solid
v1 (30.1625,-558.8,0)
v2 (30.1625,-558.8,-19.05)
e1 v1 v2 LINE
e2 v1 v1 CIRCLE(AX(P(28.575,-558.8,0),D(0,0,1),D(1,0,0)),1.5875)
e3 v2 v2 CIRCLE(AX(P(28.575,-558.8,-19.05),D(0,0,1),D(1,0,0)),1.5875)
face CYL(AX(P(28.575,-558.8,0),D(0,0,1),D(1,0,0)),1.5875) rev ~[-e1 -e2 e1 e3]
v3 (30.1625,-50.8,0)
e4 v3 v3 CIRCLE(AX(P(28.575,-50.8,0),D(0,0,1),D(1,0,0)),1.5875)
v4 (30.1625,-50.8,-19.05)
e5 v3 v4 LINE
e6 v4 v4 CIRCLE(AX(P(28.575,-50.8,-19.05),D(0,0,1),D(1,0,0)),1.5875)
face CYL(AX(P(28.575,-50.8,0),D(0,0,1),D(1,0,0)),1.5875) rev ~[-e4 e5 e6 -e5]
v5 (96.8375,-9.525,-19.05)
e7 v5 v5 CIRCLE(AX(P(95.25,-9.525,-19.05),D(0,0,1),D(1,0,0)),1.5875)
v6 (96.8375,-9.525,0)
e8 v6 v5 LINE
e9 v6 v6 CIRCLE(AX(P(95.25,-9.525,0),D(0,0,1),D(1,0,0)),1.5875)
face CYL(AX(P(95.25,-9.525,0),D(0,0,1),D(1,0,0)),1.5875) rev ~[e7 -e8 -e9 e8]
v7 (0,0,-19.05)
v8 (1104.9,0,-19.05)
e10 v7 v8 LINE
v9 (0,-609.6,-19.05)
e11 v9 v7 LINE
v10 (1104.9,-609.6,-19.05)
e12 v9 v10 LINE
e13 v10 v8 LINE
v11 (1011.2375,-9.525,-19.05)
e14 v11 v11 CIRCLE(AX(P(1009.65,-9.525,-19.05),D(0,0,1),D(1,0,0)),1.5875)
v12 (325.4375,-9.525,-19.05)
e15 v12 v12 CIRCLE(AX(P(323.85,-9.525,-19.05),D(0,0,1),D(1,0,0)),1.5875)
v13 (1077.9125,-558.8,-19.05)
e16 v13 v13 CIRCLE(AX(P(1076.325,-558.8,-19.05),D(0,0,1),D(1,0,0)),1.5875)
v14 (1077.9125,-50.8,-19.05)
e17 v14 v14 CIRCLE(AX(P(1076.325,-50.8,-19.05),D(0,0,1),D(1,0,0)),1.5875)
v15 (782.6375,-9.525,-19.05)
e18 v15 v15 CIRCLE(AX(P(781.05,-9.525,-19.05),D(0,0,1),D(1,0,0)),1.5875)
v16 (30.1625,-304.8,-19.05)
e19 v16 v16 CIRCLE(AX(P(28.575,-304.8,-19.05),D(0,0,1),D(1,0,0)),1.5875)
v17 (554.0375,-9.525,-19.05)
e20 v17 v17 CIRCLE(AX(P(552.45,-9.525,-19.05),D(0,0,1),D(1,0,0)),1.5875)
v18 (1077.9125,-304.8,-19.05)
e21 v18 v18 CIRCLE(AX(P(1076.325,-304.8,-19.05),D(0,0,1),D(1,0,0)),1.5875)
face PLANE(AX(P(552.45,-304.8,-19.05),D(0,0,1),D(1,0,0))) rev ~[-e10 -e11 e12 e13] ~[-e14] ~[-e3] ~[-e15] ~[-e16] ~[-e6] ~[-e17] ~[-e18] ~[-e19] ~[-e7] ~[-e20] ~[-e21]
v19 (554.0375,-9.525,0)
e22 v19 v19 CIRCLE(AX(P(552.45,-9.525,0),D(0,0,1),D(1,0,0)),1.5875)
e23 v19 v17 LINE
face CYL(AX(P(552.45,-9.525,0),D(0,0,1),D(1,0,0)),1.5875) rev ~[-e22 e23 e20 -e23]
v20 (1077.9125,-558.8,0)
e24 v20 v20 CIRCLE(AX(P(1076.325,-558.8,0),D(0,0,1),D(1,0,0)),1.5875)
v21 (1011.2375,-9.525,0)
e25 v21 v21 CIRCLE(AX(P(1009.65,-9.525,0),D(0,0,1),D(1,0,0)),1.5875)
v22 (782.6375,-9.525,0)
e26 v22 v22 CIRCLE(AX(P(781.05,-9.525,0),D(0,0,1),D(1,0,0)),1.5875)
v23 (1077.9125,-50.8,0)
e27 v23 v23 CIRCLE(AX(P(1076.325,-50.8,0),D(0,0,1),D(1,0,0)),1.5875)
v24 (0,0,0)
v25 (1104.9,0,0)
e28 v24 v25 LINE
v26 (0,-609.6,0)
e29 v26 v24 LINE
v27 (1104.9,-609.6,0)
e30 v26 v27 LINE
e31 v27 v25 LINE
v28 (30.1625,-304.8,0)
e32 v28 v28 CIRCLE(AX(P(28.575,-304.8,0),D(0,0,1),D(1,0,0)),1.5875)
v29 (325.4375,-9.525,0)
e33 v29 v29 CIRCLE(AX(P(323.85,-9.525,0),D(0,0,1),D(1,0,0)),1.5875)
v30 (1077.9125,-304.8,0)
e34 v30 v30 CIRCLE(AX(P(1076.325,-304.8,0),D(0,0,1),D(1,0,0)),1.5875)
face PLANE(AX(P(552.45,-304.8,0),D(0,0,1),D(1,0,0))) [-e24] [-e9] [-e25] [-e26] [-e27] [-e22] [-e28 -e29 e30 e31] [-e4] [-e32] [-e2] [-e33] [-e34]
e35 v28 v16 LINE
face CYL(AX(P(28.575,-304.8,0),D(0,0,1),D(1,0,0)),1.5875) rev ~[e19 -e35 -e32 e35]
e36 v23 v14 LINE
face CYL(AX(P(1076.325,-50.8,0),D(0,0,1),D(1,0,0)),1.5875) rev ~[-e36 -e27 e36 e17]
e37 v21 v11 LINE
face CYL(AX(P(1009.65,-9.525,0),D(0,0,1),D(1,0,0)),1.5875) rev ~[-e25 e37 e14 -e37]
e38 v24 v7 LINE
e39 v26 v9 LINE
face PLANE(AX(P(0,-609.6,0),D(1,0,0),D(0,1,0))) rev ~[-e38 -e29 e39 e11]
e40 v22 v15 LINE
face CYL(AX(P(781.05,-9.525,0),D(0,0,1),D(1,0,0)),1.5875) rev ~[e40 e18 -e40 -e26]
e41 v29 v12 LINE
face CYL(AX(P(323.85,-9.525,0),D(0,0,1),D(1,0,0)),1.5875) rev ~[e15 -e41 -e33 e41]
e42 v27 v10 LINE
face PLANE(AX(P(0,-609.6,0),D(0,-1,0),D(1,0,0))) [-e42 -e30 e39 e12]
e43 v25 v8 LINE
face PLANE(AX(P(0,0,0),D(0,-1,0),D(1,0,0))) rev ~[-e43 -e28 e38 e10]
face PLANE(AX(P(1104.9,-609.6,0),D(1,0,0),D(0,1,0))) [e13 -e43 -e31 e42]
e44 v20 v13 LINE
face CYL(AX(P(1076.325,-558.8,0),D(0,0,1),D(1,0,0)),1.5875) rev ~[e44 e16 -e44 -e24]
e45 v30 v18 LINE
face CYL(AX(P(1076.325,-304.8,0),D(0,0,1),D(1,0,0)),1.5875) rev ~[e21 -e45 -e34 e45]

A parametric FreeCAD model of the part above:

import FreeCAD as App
import Part
import Sketcher

V = App.Vector
Q = App.Units.Quantity


def add_polygon(sketch, points):
    """Adds a closed chain of lines whose ends are joined by coincident constraints."""
    first, n = sketch.GeometryCount, len(points)
    for a, b in zip(points, points[1:] + points[:1]):
        sketch.addGeometry(Part.LineSegment(App.Vector(*a, 0), App.Vector(*b, 0)), False)
    for i in range(n):
        sketch.addConstraint(Sketcher.Constraint("Coincident", first + i, 2, first + (i + 1) % n, 1))

doc = App.newDocument("Part")
body = doc.addObject("PartDesign::Body", "Body")

sketch1 = body.newObject("Sketcher::SketchObject", "Sketch")
sketch1.AttachmentSupport = (doc.getObject("XY_Plane"), [""])
sketch1.MapMode = "FlatFace"
add_polygon(sketch1, [(0, 0), (0, -610), (1105, -610), (1105, 0)])
sketch1.addConstraint([
    Sketcher.Constraint("Vertical", 0),
    Sketcher.Constraint("Horizontal", 1),
    Sketcher.Constraint("Vertical", 2),
    Sketcher.Constraint("Horizontal", 3),
    Sketcher.Constraint("Coincident", 3, 2, -1, 1),
    Sketcher.Constraint("DistanceY", 0, 2, 0, 1, Q("24 in")),
    Sketcher.Constraint("DistanceX", 1, 1, 1, 2, Q("43.5 in")),
])
pad1 = body.newObject("PartDesign::Pad", "Pad")
pad1.Profile = sketch1
pad1.Length = Q("0.75 in")
pad1.Reversed = True

sketch2 = body.newObject("Sketcher::SketchObject", "Sketch001")
sketch2.AttachmentSupport = (doc.getObject("XY_Plane"), [""])
sketch2.MapMode = "FlatFace"
sketch2.addGeometry([
    Part.Circle(V(95.2, -9.5, 0), V(0, 0, 1), 1.6),
    Part.Circle(V(323.9, -9.5, 0), V(0, 0, 1), 1.6),
    Part.Circle(V(552.5, -9.5, 0), V(0, 0, 1), 1.6),
    Part.Circle(V(781, -9.5, 0), V(0, 0, 1), 1.6),
    Part.Circle(V(1009.6, -9.5, 0), V(0, 0, 1), 1.6),
], False)
sketch2.addConstraint([
    Sketcher.Constraint("Equal", 0, 1),
    Sketcher.Constraint("Equal", 1, 2),
    Sketcher.Constraint("Equal", 2, 3),
    Sketcher.Constraint("Equal", 3, 4),
    Sketcher.Constraint("Horizontal", 0, 3, 1, 3),
    Sketcher.Constraint("Horizontal", 1, 3, 2, 3),
    Sketcher.Constraint("Horizontal", 2, 3, 3, 3),
    Sketcher.Constraint("Horizontal", 3, 3, 4, 3),
    Sketcher.Constraint("Diameter", 0, Q("0.125 in")),
    Sketcher.Constraint("DistanceX", 0, 3, 1, 3, Q("9 in")),
    Sketcher.Constraint("DistanceX", 1, 3, 2, 3, Q("9 in")),
    Sketcher.Constraint("DistanceX", 2, 3, 3, 3, Q("9 in")),
    Sketcher.Constraint("DistanceX", 3, 3, 4, 3, Q("9 in")),
    Sketcher.Constraint("DistanceX", -1, 1, 0, 3, Q("3.75 in")),
    Sketcher.Constraint("DistanceY", 0, 3, -1, 1, Q("0.375 in")),
])
pocket1 = body.newObject("PartDesign::Pocket", "Pocket")
pocket1.Profile = sketch2
pocket1.Type = "ThroughAll"

sketch3 = body.newObject("Sketcher::SketchObject", "Sketch002")
sketch3.AttachmentSupport = (doc.getObject("XY_Plane"), [""])
sketch3.MapMode = "FlatFace"
sketch3.addGeometry([
    Part.Circle(V(28.6, -50.8, 0), V(0, 0, 1), 1.6),
    Part.Circle(V(28.6, -304.8, 0), V(0, 0, 1), 1.6),
    Part.Circle(V(28.6, -558.8, 0), V(0, 0, 1), 1.6),
    Part.Circle(V(1076.3, -50.8, 0), V(0, 0, 1), 1.6),
    Part.Circle(V(1076.3, -304.8, 0), V(0, 0, 1), 1.6),
    Part.Circle(V(1076.3, -558.8, 0), V(0, 0, 1), 1.6),
], False)
sketch3.addConstraint([
    Sketcher.Constraint("Equal", 0, 1),
    Sketcher.Constraint("Equal", 1, 2),
    Sketcher.Constraint("Equal", 2, 3),
    Sketcher.Constraint("Equal", 3, 4),
    Sketcher.Constraint("Equal", 4, 5),
    Sketcher.Constraint("Horizontal", 0, 3, 3, 3),
    Sketcher.Constraint("Horizontal", 1, 3, 4, 3),
    Sketcher.Constraint("Horizontal", 2, 3, 5, 3),
    Sketcher.Constraint("Vertical", 0, 3, 1, 3),
    Sketcher.Constraint("Vertical", 1, 3, 2, 3),
    Sketcher.Constraint("Vertical", 3, 3, 4, 3),
    Sketcher.Constraint("Vertical", 4, 3, 5, 3),
    Sketcher.Constraint("Diameter", 0, Q("0.125 in")),
    Sketcher.Constraint("DistanceY", 0, 3, -1, 1, Q("2 in")),
    Sketcher.Constraint("DistanceY", 1, 3, -1, 1, Q("12 in")),
    Sketcher.Constraint("DistanceY", 2, 3, -1, 1, Q("22 in")),
    Sketcher.Constraint("DistanceX", 0, 3, 3, 3, Q("41.25 in")),
    Sketcher.Constraint("DistanceX", -1, 1, 0, 3, Q("1.125 in")),
])
pocket2 = body.newObject("PartDesign::Pocket", "Pocket001")
pocket2.Profile = sketch3
pocket2.Type = "ThroughAll"

doc.recompute()
